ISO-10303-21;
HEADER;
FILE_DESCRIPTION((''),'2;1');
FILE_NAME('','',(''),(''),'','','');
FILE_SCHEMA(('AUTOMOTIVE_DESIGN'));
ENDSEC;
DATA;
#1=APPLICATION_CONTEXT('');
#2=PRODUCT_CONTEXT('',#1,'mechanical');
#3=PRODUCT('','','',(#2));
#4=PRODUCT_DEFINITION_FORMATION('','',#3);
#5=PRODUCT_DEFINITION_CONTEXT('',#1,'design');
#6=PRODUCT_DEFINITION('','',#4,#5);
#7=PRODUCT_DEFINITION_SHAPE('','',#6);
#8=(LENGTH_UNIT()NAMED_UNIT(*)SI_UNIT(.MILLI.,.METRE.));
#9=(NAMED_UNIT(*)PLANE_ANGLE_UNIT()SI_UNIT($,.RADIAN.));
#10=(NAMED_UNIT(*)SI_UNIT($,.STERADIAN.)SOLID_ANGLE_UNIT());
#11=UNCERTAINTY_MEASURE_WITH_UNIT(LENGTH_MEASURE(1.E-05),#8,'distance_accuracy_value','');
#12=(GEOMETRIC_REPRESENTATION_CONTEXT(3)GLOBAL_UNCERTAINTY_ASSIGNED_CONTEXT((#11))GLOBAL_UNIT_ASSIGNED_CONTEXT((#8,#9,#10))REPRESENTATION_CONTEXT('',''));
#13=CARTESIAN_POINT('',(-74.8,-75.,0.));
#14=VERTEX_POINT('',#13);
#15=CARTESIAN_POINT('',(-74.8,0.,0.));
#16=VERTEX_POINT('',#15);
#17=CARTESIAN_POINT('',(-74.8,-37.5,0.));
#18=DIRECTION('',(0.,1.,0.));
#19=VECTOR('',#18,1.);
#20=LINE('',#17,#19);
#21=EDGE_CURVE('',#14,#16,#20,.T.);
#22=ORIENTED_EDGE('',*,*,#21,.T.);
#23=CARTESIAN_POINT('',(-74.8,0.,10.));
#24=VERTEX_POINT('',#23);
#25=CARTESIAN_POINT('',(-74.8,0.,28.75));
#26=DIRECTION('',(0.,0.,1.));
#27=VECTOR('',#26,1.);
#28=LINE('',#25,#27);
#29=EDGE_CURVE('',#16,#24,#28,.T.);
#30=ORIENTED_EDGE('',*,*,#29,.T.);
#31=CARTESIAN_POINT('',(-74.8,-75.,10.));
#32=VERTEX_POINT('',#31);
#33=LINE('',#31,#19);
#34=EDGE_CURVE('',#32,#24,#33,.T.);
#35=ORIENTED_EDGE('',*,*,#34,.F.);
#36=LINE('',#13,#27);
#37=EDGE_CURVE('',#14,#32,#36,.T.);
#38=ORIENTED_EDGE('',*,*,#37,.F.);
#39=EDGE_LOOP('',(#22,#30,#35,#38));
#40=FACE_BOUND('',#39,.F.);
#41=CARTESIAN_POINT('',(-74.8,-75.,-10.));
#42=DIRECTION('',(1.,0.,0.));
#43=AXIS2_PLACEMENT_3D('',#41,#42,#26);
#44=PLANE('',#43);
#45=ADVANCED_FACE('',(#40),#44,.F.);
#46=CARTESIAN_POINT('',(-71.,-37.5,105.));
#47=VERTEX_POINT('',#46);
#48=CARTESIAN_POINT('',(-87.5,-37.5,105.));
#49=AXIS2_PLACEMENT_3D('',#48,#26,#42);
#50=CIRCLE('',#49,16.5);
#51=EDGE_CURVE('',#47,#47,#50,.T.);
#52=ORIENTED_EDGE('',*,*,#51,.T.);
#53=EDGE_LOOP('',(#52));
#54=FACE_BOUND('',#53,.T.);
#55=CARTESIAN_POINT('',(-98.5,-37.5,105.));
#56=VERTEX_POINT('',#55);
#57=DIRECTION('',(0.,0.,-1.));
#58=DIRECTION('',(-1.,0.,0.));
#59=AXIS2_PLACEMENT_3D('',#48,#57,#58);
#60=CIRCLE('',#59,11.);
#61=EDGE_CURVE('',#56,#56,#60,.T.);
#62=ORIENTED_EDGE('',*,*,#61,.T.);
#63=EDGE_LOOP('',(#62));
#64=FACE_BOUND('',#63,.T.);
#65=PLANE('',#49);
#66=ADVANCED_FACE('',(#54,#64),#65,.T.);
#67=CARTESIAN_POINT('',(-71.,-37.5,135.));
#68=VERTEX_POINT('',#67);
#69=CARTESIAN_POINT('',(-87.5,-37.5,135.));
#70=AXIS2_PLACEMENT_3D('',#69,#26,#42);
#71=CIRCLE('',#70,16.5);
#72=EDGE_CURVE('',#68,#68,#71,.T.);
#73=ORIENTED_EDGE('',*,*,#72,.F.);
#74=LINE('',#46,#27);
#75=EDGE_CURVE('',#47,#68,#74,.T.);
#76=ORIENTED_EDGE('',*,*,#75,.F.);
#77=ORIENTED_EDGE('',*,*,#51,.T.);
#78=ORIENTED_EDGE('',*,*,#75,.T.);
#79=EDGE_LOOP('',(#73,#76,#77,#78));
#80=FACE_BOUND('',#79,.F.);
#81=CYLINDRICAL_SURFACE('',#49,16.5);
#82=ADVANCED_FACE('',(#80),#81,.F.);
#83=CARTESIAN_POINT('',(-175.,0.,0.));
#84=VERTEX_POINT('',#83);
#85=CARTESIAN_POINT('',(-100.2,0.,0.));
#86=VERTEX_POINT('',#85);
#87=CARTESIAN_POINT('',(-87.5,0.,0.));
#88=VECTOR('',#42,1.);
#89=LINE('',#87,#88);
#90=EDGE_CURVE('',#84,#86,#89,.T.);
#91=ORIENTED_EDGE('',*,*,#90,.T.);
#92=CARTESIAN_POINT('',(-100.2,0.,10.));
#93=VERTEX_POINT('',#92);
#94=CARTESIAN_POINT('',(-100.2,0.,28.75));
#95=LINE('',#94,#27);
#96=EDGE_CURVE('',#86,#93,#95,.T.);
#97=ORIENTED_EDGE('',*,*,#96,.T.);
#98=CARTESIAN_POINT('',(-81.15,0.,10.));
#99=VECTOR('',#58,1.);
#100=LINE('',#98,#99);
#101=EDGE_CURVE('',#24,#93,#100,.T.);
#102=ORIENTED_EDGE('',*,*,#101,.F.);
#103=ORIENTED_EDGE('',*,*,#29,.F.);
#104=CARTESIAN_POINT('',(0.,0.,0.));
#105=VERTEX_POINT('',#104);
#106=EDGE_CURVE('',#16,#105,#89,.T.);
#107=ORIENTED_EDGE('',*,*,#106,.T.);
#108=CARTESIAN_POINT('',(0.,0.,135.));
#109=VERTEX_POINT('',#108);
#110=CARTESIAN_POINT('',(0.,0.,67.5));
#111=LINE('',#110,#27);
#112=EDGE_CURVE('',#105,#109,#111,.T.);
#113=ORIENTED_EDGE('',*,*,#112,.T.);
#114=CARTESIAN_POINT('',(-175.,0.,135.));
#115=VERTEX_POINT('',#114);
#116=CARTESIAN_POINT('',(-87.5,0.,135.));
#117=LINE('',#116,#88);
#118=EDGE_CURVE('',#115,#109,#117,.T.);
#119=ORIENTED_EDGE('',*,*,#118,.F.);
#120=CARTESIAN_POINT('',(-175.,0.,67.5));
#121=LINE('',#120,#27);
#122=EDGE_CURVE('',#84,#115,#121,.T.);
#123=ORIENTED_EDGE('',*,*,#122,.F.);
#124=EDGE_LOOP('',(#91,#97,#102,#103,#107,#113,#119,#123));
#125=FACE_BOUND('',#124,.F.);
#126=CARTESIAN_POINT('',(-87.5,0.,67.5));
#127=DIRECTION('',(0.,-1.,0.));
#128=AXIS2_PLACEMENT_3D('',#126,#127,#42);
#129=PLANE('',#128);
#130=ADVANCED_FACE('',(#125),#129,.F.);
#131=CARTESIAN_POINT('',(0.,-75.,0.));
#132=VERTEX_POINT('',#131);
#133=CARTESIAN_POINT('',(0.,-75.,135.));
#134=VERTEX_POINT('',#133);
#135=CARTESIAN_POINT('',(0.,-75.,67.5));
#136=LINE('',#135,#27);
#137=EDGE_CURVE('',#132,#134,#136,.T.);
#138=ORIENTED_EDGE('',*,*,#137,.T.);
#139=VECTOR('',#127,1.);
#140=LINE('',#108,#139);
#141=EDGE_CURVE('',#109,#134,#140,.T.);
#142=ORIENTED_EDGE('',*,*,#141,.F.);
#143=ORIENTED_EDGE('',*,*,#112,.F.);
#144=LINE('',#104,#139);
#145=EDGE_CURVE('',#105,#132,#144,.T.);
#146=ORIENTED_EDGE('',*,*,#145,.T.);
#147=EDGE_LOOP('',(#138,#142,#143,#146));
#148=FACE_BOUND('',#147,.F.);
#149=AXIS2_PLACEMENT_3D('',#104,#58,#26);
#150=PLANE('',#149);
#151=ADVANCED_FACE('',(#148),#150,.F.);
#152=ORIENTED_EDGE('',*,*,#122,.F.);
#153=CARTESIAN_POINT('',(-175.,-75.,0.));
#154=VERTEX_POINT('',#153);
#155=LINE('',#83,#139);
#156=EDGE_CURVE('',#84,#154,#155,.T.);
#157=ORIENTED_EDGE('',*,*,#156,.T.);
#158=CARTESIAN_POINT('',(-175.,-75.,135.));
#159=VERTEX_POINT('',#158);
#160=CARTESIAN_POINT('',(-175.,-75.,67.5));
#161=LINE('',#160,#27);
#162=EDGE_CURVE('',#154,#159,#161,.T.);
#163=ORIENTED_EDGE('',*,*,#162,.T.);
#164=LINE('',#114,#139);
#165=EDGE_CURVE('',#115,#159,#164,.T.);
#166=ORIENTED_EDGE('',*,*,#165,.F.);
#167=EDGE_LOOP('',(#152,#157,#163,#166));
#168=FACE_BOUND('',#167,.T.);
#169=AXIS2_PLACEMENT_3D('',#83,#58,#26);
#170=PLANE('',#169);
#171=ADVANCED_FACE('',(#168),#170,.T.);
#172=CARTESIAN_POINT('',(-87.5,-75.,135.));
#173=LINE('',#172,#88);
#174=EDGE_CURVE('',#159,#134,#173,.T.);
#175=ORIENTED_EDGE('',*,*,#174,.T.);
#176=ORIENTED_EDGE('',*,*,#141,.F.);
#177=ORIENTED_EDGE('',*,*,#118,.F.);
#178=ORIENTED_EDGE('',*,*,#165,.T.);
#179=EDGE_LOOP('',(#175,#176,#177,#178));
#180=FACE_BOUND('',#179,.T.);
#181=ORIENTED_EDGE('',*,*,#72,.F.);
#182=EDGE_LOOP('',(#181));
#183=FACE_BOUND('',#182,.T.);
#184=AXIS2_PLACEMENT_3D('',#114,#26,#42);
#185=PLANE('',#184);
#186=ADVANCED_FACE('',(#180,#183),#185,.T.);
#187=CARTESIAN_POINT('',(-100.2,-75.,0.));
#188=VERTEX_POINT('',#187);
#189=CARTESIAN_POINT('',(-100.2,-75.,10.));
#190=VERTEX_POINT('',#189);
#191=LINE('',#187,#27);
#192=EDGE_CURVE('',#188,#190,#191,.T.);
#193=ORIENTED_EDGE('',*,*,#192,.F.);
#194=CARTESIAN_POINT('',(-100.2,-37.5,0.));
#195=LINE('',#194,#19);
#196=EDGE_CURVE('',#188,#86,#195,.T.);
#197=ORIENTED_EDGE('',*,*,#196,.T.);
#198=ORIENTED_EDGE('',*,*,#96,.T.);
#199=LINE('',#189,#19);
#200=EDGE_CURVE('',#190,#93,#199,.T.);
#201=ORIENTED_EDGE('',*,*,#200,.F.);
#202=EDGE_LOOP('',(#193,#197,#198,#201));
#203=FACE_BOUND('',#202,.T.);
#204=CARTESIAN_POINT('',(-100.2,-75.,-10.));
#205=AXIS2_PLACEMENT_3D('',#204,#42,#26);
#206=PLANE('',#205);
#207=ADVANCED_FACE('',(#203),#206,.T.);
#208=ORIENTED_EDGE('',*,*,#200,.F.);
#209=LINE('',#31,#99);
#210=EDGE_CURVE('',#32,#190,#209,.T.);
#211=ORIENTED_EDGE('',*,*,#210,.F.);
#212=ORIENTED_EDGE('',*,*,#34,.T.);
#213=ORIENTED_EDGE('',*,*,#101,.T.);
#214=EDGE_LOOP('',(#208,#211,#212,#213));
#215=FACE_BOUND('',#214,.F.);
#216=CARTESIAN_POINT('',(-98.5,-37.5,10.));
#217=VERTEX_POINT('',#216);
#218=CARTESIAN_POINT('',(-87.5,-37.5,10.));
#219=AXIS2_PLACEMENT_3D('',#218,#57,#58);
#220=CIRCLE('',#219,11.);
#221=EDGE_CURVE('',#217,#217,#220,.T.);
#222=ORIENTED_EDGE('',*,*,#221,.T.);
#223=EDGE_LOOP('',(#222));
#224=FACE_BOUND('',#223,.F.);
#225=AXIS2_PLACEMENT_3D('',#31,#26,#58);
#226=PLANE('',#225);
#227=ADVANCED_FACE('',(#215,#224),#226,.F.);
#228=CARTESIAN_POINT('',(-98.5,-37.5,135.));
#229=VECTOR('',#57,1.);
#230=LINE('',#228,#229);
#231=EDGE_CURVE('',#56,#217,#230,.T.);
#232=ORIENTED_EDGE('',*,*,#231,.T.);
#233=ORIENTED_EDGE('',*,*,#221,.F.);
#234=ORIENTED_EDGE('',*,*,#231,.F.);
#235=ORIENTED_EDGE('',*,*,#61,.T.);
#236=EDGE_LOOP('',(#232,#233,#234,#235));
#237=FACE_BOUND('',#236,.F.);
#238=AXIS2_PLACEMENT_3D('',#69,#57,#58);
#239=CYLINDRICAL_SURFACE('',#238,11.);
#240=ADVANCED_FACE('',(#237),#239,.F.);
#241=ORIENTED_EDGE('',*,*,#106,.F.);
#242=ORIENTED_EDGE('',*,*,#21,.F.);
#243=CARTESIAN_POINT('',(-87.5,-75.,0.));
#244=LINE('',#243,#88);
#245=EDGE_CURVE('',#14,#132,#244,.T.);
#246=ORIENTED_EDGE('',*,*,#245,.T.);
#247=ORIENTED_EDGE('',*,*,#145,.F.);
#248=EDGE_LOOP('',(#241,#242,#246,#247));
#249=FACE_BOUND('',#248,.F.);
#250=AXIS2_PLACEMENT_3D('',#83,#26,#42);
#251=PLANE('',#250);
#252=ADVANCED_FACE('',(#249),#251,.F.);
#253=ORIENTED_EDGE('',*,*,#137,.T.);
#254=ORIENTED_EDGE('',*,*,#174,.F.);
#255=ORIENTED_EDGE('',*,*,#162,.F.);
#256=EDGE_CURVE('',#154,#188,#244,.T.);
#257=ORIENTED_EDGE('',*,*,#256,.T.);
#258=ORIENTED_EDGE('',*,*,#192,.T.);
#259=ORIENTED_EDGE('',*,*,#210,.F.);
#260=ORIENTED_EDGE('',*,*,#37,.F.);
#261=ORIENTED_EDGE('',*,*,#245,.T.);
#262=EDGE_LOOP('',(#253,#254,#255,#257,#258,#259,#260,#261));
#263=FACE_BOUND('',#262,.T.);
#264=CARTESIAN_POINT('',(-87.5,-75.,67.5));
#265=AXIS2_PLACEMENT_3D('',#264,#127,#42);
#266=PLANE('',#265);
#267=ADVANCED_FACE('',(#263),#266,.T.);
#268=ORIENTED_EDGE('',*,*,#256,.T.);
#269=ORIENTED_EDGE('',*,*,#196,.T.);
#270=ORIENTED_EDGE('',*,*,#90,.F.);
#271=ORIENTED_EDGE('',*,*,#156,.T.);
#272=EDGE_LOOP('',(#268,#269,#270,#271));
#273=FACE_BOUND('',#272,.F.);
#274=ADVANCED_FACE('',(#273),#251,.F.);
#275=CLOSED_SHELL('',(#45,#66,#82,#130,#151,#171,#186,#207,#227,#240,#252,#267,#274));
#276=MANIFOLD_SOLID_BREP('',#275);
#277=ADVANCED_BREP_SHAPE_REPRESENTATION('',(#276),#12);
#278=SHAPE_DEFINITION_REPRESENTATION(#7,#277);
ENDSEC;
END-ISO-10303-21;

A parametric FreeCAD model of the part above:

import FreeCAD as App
import Part
import Sketcher

V = App.Vector
Q = App.Units.Quantity


def add_polygon(sketch, points):
    """Adds a closed chain of lines whose ends are joined by coincident constraints."""
    first, n = sketch.GeometryCount, len(points)
    for a, b in zip(points, points[1:] + points[:1]):
        sketch.addGeometry(Part.LineSegment(App.Vector(*a, 0), App.Vector(*b, 0)), False)
    for i in range(n):
        sketch.addConstraint(Sketcher.Constraint("Coincident", first + i, 2, first + (i + 1) % n, 1))

doc = App.newDocument("Part")
body = doc.addObject("PartDesign::Body", "Body")

sketch1 = doc.addObject("Sketcher::SketchObject", "Sketch")
body.addObject(sketch1)
sketch1.AttachmentSupport = (doc.XZ_Plane, [""])
sketch1.MapMode = "FlatFace"
add_polygon(sketch1, [(-175, 135), (-175, 0), (0, 0), (0, 135)])
sketch1.addConstraint(Sketcher.Constraint("Vertical", 0))
sketch1.addConstraint(Sketcher.Constraint("Horizontal", 1))
sketch1.addConstraint(Sketcher.Constraint("Vertical", 2))
sketch1.addConstraint(Sketcher.Constraint("Horizontal", 3))
sketch1.addConstraint(Sketcher.Constraint("Coincident", 1, 2, -1, 1))
sketch1.addConstraint(Sketcher.Constraint("DistanceX", 1, 1, 1, 2, Q("175 mm")))
sketch1.addConstraint(Sketcher.Constraint("DistanceY", 0, 2, 0, 1, Q("135 mm")))
pad1 = doc.addObject("PartDesign::Pad", "Pad")
body.addObject(pad1)
pad1.Profile = sketch1
pad1.Length = 75

sketch2 = doc.addObject("Sketcher::SketchObject", "Sketch001")
body.addObject(sketch2)
sketch2.AttachmentSupport = (doc.XZ_Plane, [""])
sketch2.MapMode = "FlatFace"
sketch2.AttachmentOffset = App.Placement(V(0, 0, 75), App.Rotation())
add_polygon(sketch2, [(-100.2, 10), (-100.2, -10), (-74.8, -10), (-74.8, 10)])
sketch2.addConstraint(Sketcher.Constraint("Vertical", 0))
sketch2.addConstraint(Sketcher.Constraint("Horizontal", 1))
sketch2.addConstraint(Sketcher.Constraint("Vertical", 2))
sketch2.addConstraint(Sketcher.Constraint("Horizontal", 3))
sketch2.addConstraint(Sketcher.Constraint("DistanceY", 0, 2, 0, 1, Q("20 mm")))
sketch2.addConstraint(Sketcher.Constraint("DistanceX", 1, 1, 1, 2, Q("25.4 mm")))
sketch2.addConstraint(Sketcher.Constraint("DistanceY", 0, 2, -1, 1, Q("10 mm")))
sketch2.addConstraint(Sketcher.Constraint("DistanceX", 0, 2, -1, 1, Q("100.2 mm")))
pocket1 = doc.addObject("PartDesign::Pocket", "Pocket")
body.addObject(pocket1)
pocket1.Profile = sketch2
pocket1.Length = 92.1

sketch3 = doc.addObject("Sketcher::SketchObject", "Sketch002")
body.addObject(sketch3)
sketch3.AttachmentSupport = (doc.XY_Plane, [""])
sketch3.MapMode = "FlatFace"
sketch3.AttachmentOffset = App.Placement(V(0, 0, 135), App.Rotation())
sketch3.addGeometry(Part.Circle(V(-87.5, -37.5, 0), V(0, 0, 1), 11), False)
sketch3.addConstraint(Sketcher.Constraint("Diameter", 0, Q("22 mm")))
sketch3.addConstraint(Sketcher.Constraint("DistanceX", 0, 3, -1, 1, Q("87.5 mm")))
sketch3.addConstraint(Sketcher.Constraint("DistanceY", 0, 3, -1, 1, Q("37.5 mm")))
doc.recompute()
hole = doc.addObject("PartDesign::Hole", "Hole")
body.addObject(hole)
hole.Profile = sketch3
hole.ThreadType = "None"
hole.Diameter = 22
hole.DepthType = "Dimension"
hole.Depth = 180
hole.DrillPoint = "Flat"
hole.HoleCutType = "Counterbore"
hole.HoleCutDiameter = 33
hole.HoleCutDepth = 30

doc.recompute()
